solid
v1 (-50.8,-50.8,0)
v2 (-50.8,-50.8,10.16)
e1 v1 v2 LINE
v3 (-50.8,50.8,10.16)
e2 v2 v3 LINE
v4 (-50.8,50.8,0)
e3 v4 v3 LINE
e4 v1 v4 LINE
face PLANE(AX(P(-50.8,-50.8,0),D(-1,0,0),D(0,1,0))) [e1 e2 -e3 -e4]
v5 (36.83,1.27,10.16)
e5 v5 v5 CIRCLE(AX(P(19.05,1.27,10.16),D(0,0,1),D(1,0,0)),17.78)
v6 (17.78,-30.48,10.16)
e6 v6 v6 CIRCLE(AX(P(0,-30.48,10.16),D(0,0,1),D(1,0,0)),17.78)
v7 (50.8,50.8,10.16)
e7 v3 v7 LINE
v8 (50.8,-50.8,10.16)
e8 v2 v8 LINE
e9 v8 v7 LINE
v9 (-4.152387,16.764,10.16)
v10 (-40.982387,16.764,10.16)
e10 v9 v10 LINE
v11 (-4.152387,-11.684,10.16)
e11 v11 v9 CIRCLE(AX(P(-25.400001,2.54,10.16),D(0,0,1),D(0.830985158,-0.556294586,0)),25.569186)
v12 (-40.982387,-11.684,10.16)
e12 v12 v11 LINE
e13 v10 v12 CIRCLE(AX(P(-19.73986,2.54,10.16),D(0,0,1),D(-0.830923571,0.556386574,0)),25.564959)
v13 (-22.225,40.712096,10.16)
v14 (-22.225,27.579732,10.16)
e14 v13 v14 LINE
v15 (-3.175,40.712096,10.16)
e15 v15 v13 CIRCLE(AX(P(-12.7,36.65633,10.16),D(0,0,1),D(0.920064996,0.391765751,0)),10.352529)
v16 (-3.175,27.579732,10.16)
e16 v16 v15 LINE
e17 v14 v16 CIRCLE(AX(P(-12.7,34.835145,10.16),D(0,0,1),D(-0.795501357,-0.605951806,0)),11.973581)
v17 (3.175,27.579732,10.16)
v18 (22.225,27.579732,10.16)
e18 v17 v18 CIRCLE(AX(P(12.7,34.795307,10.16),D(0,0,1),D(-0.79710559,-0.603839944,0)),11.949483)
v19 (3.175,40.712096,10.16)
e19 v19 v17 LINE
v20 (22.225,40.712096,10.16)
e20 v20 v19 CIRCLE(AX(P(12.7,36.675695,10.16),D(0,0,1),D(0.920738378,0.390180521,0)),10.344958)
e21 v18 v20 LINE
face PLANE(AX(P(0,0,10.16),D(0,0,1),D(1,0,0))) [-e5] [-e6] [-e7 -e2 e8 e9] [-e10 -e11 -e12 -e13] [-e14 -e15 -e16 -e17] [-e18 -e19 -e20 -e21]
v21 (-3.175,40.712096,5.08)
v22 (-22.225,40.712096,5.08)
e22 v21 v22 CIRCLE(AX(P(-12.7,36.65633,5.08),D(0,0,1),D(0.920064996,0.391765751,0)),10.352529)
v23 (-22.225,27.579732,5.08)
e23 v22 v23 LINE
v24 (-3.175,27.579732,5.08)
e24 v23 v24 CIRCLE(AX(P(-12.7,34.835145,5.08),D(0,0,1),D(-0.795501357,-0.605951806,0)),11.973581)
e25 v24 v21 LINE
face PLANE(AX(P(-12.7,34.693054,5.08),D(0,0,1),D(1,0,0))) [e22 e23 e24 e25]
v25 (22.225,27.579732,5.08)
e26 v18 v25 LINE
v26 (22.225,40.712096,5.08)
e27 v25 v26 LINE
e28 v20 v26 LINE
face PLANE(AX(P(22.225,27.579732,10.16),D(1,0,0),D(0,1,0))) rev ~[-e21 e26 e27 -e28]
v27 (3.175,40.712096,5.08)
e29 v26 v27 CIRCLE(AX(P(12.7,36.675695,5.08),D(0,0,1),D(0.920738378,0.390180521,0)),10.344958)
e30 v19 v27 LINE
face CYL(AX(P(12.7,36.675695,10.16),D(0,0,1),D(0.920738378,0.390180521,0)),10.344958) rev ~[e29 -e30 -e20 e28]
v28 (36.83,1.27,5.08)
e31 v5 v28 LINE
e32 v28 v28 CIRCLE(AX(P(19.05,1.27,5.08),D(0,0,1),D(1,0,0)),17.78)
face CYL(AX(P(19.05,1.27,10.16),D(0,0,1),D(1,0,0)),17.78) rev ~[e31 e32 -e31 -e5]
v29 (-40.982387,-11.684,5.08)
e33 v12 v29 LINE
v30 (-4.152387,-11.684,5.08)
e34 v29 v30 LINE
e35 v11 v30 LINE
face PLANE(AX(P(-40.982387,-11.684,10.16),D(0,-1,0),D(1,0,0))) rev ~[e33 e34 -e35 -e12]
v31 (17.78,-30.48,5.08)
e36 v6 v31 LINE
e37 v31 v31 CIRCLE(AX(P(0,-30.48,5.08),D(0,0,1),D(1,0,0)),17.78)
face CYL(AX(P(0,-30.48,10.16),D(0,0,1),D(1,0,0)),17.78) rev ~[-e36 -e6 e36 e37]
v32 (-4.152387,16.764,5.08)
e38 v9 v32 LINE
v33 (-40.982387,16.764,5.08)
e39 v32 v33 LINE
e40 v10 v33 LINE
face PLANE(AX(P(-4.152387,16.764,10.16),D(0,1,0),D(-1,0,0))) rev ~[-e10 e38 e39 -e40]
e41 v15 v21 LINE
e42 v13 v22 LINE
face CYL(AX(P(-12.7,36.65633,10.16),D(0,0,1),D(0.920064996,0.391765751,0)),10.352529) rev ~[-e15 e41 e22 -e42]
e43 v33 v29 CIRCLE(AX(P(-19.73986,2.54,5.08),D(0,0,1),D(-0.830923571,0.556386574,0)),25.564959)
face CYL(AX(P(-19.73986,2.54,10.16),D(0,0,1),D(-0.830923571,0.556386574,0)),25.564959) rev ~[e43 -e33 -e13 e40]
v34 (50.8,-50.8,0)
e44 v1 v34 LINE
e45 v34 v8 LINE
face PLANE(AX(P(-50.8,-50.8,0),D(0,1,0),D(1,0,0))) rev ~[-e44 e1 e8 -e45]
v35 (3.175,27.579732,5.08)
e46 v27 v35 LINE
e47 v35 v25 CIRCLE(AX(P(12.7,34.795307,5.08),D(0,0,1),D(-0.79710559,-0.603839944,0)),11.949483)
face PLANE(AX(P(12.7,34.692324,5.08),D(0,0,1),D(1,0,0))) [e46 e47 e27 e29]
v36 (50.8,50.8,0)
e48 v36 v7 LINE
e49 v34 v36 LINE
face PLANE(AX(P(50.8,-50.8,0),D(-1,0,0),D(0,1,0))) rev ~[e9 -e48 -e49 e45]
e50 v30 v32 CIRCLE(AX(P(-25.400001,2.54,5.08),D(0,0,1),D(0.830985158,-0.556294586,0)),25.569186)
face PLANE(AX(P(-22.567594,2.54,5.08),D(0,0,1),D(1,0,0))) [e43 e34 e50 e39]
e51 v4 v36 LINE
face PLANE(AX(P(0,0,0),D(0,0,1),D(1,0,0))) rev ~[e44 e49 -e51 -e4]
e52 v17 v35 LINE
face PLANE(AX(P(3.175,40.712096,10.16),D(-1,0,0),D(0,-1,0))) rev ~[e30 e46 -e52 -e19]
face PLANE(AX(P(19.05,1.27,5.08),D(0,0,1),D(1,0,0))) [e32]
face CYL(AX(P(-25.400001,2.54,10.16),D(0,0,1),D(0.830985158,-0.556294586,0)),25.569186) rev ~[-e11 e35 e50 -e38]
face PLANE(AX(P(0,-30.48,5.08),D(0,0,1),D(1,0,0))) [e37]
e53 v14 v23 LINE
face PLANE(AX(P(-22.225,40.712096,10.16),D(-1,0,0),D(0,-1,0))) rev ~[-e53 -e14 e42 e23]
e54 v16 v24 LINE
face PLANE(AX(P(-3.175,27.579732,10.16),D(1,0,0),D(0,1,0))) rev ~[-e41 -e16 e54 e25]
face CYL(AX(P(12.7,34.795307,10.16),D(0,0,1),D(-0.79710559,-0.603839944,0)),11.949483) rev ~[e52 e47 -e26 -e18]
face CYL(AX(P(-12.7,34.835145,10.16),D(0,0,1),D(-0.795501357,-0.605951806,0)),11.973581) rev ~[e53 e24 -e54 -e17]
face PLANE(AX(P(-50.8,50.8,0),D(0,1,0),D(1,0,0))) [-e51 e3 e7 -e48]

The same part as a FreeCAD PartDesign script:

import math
import FreeCAD as App
import Part
import Sketcher
Q = App.Units.Quantity


def add_polygon(sketch, points):
    """Adds a closed chain of lines whose ends are joined by coincident constraints."""
    first, n = sketch.GeometryCount, len(points)
    for a, b in zip(points, points[1:] + points[:1]):
        sketch.addGeometry(Part.LineSegment(App.Vector(*a, 0), App.Vector(*b, 0)), False)
    for i in range(n):
        sketch.addConstraint(Sketcher.Constraint("Coincident", first + i, 2, first + (i + 1) % n, 1))

doc = App.newDocument("Part")
body = doc.addObject("PartDesign::Body", "Body")

# Sketch on XY plane
sketch1 = body.newObject("Sketcher::SketchObject", "Sketch")
sketch1.AttachmentSupport = (doc.getObject("XY_Plane"), [""])
sketch1.MapMode = "FlatFace"
add_polygon(sketch1, [(-50.8, 50.8), (-50.8, -50.8), (50.8, -50.8), (50.8, 50.8)])  # lines 0-3
sketch1.addConstraint(Sketcher.Constraint("Vertical", 0))
sketch1.addConstraint(Sketcher.Constraint("Horizontal", 1))
sketch1.addConstraint(Sketcher.Constraint("Vertical", 2))
sketch1.addConstraint(Sketcher.Constraint("Horizontal", 3))
sketch1.addConstraint(Sketcher.Constraint("Symmetric", 0, 2, 2, 2, -1, 1))
sketch1.addConstraint(Sketcher.Constraint("Equal", 3, 0))
sketch1.addConstraint(Sketcher.Constraint("DistanceX", 1, 1, 1, 2, Q("4 in")))
pad1 = body.newObject("PartDesign::Pad", "Pad")
pad1.Profile = sketch1
pad1.Length = Q("0.4 in")

# Sketch on XY plane
sketch2 = body.newObject("Sketcher::SketchObject", "Sketch001")
sketch2.AttachmentSupport = (doc.getObject("XY_Plane"), [""])
sketch2.MapMode = "FlatFace"
sketch2.AttachmentOffset = App.Placement(App.Vector(0, 0, 0.4 * 25.4), App.Rotation())
sketch2.addGeometry(Part.Circle(App.Vector(0, -30.48, 0), App.Vector(0, 0, 1), 17.78), False)
sketch2.addGeometry(Part.Circle(App.Vector(19.05, 1.27, 0), App.Vector(0, 0, 1), 17.78), False)
sketch2.addGeometry(Part.LineSegment(App.Vector(-4.152387, 16.764, 0), App.Vector(-40.982387, 16.764, 0)), False)
sketch2.addGeometry(Part.ArcOfCircle(Part.Circle(App.Vector(-19.73986, 2.54, 0), App.Vector(0, 0, 1), 25.564959), math.radians(146.193728), math.radians(213.806272)), False)
sketch2.addGeometry(Part.LineSegment(App.Vector(-40.982387, -11.684, 0), App.Vector(-4.152387, -11.684, 0)), False)
sketch2.addGeometry(Part.ArcOfCircle(Part.Circle(App.Vector(-25.400001, 2.54, 0), App.Vector(0, 0, 1), 25.569186), math.radians(-33.799929), math.radians(33.799929)), False)
sketch2.addGeometry(Part.LineSegment(App.Vector(3.175, 40.712096, 0), App.Vector(3.175, 27.579732, 0)), False)
sketch2.addGeometry(Part.ArcOfCircle(Part.Circle(App.Vector(12.7, 34.795307, 0), App.Vector(0, 0, 1), 11.949483), math.radians(-142.854589), math.radians(-37.145411)), False)
sketch2.addGeometry(Part.LineSegment(App.Vector(22.225, 27.579732, 0), App.Vector(22.225, 40.712096, 0)), False)
sketch2.addGeometry(Part.ArcOfCircle(Part.Circle(App.Vector(12.7, 36.675695, 0), App.Vector(0, 0, 1), 10.344958), math.radians(22.965732), math.radians(157.034268)), False)
sketch2.addGeometry(Part.LineSegment(App.Vector(-22.225, 40.712096, 0), App.Vector(-22.225, 27.579732, 0)), False)
sketch2.addGeometry(Part.ArcOfCircle(Part.Circle(App.Vector(-12.7, 34.835145, 0), App.Vector(0, 0, 1), 11.973581), math.radians(-142.702636), math.radians(-37.297364)), False)
sketch2.addGeometry(Part.LineSegment(App.Vector(-3.175, 27.579732, 0), App.Vector(-3.175, 40.712096, 0)), False)
sketch2.addGeometry(Part.ArcOfCircle(Part.Circle(App.Vector(-12.7, 36.65633, 0), App.Vector(0, 0, 1), 10.352529), math.radians(23.064414), math.radians(156.935586)), False)
sketch2.addConstraint(Sketcher.Constraint("Coincident", 2, 2, 3, 1))
sketch2.addConstraint(Sketcher.Constraint("Coincident", 3, 2, 4, 1))
sketch2.addConstraint(Sketcher.Constraint("Coincident", 4, 2, 5, 1))
sketch2.addConstraint(Sketcher.Constraint("Coincident", 5, 2, 2, 1))
sketch2.addConstraint(Sketcher.Constraint("Coincident", 6, 2, 7, 1))
sketch2.addConstraint(Sketcher.Constraint("Coincident", 7, 2, 8, 1))
sketch2.addConstraint(Sketcher.Constraint("Coincident", 8, 2, 9, 1))
sketch2.addConstraint(Sketcher.Constraint("Coincident", 9, 2, 6, 1))
sketch2.addConstraint(Sketcher.Constraint("Coincident", 10, 2, 11, 1))
sketch2.addConstraint(Sketcher.Constraint("Coincident", 11, 2, 12, 1))
sketch2.addConstraint(Sketcher.Constraint("Coincident", 12, 2, 13, 1))
sketch2.addConstraint(Sketcher.Constraint("Coincident", 13, 2, 10, 1))
sketch2.addConstraint(Sketcher.Constraint("Horizontal", 2))
sketch2.addConstraint(Sketcher.Constraint("Horizontal", 4))
sketch2.addConstraint(Sketcher.Constraint("Vertical", 6))
sketch2.addConstraint(Sketcher.Constraint("Vertical", 8))
sketch2.addConstraint(Sketcher.Constraint("Vertical", 10))
sketch2.addConstraint(Sketcher.Constraint("Vertical", 12))
sketch2.addConstraint(Sketcher.Constraint("Equal", 0, 1))
sketch2.addConstraint(Sketcher.Constraint("Symmetric", 7, 2, 10, 2, -2))
sketch2.addConstraint(Sketcher.Constraint("Symmetric", 6, 2, 11, 2, -2))
sketch2.addConstraint(Sketcher.Constraint("PointOnObject", 0, 3, -2))
sketch2.addConstraint(Sketcher.Constraint("Horizontal", 3, 3, 5, 3))
sketch2.addConstraint(Sketcher.Constraint("Horizontal", 6, 2, 7, 2))
sketch2.addConstraint(Sketcher.Constraint("Horizontal", 8, 2, 9, 2))
sketch2.addConstraint(Sketcher.Constraint("Horizontal", 9, 2, 12, 2))
sketch2.addConstraint(Sketcher.Constraint("Horizontal", 12, 2, 13, 2))
sketch2.addConstraint(Sketcher.Constraint("Vertical", 2, 2, 3, 2))
sketch2.addConstraint(Sketcher.Constraint("Diameter", 0, Q("1.4 in")))
sketch2.addConstraint(Sketcher.Constraint("DistanceX", 5, 3, -1, 1, Q("1.0000001 in")))
sketch2.addConstraint(Sketcher.Constraint("DistanceX", 11, 3, 7, 3, Q("1 in")))
sketch2.addConstraint(Sketcher.Constraint("DistanceX", 2, 2, 2, 1, Q("1.45 in")))
sketch2.addConstraint(Sketcher.Constraint("DistanceY", 0, 3, -1, 1, Q("1.2 in")))
sketch2.addConstraint(Sketcher.Constraint("DistanceY", -1, 1, 3, 3, Q("0.1 in")))
sketch2.addConstraint(Sketcher.Constraint("DistanceX", -1, 1, 1, 3, Q("0.75 in")))
sketch2.addConstraint(Sketcher.Constraint("DistanceY", -1, 1, 1, 3, Q("0.05 in")))
sketch2.addConstraint(Sketcher.Constraint("DistanceY", -1, 1, 2, 2, Q("0.66 in")))
sketch2.addConstraint(Sketcher.Constraint("DistanceX", 6, 2, 7, 2, Q("0.75 in")))
sketch2.addConstraint(Sketcher.Constraint("Radius", 3, 25.564959))
sketch2.addConstraint(Sketcher.Constraint("Radius", 9, 10.344958))
sketch2.addConstraint(Sketcher.Constraint("Radius", 11, 11.973581))
sketch2.addConstraint(Sketcher.Constraint("Radius", 13, 10.352529))
sketch2.addConstraint(Sketcher.Constraint("Radius", 5, 25.569186))
sketch2.addConstraint(Sketcher.Constraint("Radius", 7, 11.949483))
sketch2.addConstraint(Sketcher.Constraint("DistanceY", 11, 3, 13, 3, Q("0.0717002 in")))
sketch2.addConstraint(Sketcher.Constraint("DistanceY", -1, 1, 13, 3, 36.65633))
pocket1 = body.newObject("PartDesign::Pocket", "Pocket")
pocket1.Profile = sketch2
pocket1.Length = Q("0.2 in")

doc.recompute()
